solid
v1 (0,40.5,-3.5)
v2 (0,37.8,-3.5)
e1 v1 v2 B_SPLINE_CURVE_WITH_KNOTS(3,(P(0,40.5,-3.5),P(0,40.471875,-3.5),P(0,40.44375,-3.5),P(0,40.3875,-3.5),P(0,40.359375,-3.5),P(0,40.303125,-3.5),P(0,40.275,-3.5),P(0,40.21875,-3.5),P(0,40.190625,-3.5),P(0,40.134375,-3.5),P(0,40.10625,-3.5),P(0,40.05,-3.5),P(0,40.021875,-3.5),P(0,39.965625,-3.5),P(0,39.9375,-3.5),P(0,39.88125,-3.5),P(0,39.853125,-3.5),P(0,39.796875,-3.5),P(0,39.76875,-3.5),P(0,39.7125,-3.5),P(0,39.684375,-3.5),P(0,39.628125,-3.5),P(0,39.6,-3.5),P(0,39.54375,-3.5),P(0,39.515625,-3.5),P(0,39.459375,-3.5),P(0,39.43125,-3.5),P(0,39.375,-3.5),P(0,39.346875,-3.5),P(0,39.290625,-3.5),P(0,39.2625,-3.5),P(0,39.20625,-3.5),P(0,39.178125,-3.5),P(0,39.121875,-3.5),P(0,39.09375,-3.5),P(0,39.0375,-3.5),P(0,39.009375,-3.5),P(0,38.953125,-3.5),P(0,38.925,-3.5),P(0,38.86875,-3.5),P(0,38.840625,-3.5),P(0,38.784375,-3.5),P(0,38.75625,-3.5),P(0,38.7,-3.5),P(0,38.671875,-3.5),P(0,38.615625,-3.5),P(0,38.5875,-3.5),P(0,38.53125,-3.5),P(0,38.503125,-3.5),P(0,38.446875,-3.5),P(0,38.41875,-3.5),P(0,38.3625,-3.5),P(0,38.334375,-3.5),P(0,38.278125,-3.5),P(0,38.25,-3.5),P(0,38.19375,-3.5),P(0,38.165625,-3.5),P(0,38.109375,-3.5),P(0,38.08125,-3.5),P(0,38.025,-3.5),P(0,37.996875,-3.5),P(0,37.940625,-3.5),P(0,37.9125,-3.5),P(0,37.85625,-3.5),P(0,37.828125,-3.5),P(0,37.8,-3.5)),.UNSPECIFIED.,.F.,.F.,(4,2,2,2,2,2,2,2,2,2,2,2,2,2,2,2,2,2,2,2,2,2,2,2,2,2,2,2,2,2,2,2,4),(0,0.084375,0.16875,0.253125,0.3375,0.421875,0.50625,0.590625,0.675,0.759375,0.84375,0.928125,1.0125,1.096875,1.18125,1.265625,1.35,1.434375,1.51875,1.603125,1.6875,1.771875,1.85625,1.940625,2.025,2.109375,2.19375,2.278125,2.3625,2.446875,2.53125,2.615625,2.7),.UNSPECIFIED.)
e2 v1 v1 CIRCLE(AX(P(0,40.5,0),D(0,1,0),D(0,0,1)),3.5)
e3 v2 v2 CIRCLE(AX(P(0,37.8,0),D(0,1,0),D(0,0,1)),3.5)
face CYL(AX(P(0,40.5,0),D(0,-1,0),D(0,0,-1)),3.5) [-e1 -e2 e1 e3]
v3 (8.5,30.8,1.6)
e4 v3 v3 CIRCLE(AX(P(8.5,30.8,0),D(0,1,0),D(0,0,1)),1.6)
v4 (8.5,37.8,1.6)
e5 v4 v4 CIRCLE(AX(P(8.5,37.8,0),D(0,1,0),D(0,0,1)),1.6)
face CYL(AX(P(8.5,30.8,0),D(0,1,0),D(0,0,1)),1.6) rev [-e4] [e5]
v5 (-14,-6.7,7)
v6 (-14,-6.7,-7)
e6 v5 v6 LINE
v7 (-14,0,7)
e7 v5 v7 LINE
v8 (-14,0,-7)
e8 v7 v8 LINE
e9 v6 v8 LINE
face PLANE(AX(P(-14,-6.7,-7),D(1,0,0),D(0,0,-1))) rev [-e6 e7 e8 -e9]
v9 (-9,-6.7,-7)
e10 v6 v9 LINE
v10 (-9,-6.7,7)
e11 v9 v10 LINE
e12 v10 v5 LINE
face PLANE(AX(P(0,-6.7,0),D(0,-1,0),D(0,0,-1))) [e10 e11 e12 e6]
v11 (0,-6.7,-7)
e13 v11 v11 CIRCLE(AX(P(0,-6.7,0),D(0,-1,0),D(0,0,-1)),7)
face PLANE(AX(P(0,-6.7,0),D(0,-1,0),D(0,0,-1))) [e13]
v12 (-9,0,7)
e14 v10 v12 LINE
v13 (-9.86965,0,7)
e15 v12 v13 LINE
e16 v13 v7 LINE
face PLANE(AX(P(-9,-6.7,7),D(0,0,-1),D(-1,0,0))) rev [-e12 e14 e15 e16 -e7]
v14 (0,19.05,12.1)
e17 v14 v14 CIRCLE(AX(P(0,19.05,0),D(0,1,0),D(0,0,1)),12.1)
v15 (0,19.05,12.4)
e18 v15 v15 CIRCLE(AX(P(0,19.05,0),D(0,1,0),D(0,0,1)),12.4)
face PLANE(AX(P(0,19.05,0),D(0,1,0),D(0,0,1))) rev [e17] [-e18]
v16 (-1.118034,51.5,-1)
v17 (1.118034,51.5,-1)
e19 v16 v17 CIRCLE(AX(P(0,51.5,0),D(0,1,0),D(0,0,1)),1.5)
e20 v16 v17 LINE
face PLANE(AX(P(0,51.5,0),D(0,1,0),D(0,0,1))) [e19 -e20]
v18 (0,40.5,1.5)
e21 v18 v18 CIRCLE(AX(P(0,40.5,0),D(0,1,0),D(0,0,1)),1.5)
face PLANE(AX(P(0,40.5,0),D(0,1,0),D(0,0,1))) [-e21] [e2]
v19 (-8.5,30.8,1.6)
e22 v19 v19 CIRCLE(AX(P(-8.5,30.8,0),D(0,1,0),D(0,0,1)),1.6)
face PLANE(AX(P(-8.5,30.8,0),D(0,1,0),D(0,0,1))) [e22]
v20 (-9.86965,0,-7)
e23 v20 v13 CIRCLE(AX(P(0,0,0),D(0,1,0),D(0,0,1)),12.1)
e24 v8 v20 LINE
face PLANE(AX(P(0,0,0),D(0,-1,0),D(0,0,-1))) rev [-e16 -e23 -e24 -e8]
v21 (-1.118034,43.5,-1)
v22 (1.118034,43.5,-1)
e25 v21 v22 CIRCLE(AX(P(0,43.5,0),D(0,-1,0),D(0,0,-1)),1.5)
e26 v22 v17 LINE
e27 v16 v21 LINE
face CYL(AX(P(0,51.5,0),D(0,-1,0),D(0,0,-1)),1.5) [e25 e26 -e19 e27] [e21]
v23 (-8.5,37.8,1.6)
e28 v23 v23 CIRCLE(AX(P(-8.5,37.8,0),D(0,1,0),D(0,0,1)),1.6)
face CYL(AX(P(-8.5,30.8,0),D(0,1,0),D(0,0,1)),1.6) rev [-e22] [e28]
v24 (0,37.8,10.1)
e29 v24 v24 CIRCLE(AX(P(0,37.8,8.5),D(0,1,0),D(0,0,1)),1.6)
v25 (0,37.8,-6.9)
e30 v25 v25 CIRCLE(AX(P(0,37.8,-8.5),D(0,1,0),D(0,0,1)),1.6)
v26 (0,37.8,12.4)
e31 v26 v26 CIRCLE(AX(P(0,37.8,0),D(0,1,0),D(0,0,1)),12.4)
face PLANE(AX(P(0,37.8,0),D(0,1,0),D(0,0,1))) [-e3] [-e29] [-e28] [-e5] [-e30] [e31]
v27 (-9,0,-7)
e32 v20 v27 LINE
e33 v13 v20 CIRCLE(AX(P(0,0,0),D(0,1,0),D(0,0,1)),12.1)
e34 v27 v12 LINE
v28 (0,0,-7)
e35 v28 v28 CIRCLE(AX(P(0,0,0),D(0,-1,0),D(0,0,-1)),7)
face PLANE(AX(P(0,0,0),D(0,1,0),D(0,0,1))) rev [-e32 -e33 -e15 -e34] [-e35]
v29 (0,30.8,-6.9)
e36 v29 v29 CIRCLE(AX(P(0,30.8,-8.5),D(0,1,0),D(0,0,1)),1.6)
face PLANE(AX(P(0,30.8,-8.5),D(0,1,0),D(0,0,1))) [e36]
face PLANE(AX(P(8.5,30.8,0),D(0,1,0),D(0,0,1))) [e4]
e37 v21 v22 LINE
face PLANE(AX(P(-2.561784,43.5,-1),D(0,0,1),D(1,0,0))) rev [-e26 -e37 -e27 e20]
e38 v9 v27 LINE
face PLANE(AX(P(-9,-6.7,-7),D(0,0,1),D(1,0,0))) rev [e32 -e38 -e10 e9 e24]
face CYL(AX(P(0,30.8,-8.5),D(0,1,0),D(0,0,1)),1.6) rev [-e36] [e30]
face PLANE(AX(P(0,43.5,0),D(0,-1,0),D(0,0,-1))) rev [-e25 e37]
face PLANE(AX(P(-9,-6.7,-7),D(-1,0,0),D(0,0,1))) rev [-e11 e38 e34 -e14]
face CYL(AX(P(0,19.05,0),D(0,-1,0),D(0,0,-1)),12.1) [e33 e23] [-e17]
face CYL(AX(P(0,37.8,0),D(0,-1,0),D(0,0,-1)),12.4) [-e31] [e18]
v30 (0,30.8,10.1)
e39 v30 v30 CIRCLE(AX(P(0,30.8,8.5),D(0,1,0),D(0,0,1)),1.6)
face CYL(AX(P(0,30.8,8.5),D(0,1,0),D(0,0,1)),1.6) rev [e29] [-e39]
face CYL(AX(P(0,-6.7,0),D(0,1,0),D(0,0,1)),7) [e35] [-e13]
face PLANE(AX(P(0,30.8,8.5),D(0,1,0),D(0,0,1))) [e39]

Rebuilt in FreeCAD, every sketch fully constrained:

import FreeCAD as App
import Part
import Sketcher


def add_polygon(sketch, points):
    """Adds a closed chain of lines whose ends are joined by coincident constraints."""
    first, n = sketch.GeometryCount, len(points)
    for a, b in zip(points, points[1:] + points[:1]):
        sketch.addGeometry(Part.LineSegment(App.Vector(*a, 0), App.Vector(*b, 0)), False)
    for i in range(n):
        sketch.addConstraint(Sketcher.Constraint("Coincident", first + i, 2, first + (i + 1) % n, 1))

doc = App.newDocument("Part")
body = doc.addObject("PartDesign::Body", "Body")

# Sketch on XZ plane
sketch1 = body.newObject("Sketcher::SketchObject", "Sketch")
sketch1.AttachmentSupport = (doc.getObject("XZ_Plane"), [""])
sketch1.MapMode = "FlatFace"
sketch1.addGeometry(Part.Circle(App.Vector(0, 0, 0), App.Vector(0, 0, 1), 12), False)
sketch1.addConstraint([
    Sketcher.Constraint("Coincident", 0, 3, -1, 1),
    Sketcher.Constraint("Diameter", 0, 24.2),
])
pad1 = body.newObject("PartDesign::Pad", "Pad")
pad1.Profile = sketch1
pad1.Length = 19.05
pad1.Reversed = True

# Sketch on XZ plane
sketch2 = body.newObject("Sketcher::SketchObject", "Sketch001")
sketch2.AttachmentSupport = (doc.getObject("XZ_Plane"), [""])
sketch2.MapMode = "FlatFace"
sketch2.AttachmentOffset = App.Placement(App.Vector(0, 0, -19.05), App.Rotation())
sketch2.addGeometry(Part.Circle(App.Vector(0, 0, 0), App.Vector(0, 0, 1), 12), False)
sketch2.addConstraint([
    Sketcher.Constraint("Coincident", 0, 3, -1, 1),
    Sketcher.Constraint("Diameter", 0, 24.8),
])
pad2 = body.newObject("PartDesign::Pad", "Pad001")
pad2.Profile = sketch2
pad2.Length = 18.75
pad2.Reversed = True

# Sketch on XZ plane
sketch3 = body.newObject("Sketcher::SketchObject", "Sketch002")
sketch3.AttachmentSupport = (doc.getObject("XZ_Plane"), [""])
sketch3.MapMode = "FlatFace"
sketch3.AttachmentOffset = App.Placement(App.Vector(0, 0, -37.8), App.Rotation())
sketch3.addGeometry(Part.Circle(App.Vector(0, 0, 0), App.Vector(0, 0, 1), 3.5), False)
sketch3.addConstraint([
    Sketcher.Constraint("Coincident", 0, 3, -1, 1),
    Sketcher.Constraint("Diameter", 0, 7.0),
])
pad3 = body.newObject("PartDesign::Pad", "Pad002")
pad3.Profile = sketch3
pad3.Length = 2.7
pad3.Reversed = True

# Sketch on XZ plane
sketch4 = body.newObject("Sketcher::SketchObject", "Sketch003")
sketch4.AttachmentSupport = (doc.getObject("XZ_Plane"), [""])
sketch4.MapMode = "FlatFace"
sketch4.AttachmentOffset = App.Placement(App.Vector(0, 0, -40.5), App.Rotation())
sketch4.addGeometry(Part.Circle(App.Vector(0, 0, 0), App.Vector(0, 0, 1), 1.5), False)
sketch4.addConstraint([
    Sketcher.Constraint("Coincident", 0, 3, -1, 1),
    Sketcher.Constraint("Diameter", 0, 3.0),
])
pad4 = body.newObject("PartDesign::Pad", "Pad003")
pad4.Profile = sketch4
pad4.Length = 11
pad4.Reversed = True

# Sketch on XZ plane
sketch5 = body.newObject("Sketcher::SketchObject", "Sketch004")
sketch5.AttachmentSupport = (doc.getObject("XZ_Plane"), [""])
sketch5.MapMode = "FlatFace"
sketch5.AttachmentOffset = App.Placement(App.Vector(0, 0, -37.8), App.Rotation())
sketch5.addGeometry([
    Part.Circle(App.Vector(0, -8.5, 0), App.Vector(0, 0, 1), 1.6),
    Part.Circle(App.Vector(8.5, 0, 0), App.Vector(0, 0, 1), 1.6),
    Part.Circle(App.Vector(0, 8.5, 0), App.Vector(0, 0, 1), 1.6),
    Part.Circle(App.Vector(-8.5, 0, 0), App.Vector(0, 0, 1), 1.6),
], False)
sketch5.addConstraint([
    Sketcher.Constraint("Equal", 0, 1),
    Sketcher.Constraint("Equal", 1, 2),
    Sketcher.Constraint("Equal", 2, 3),
    Sketcher.Constraint("Symmetric", 0, 3, 2, 3, -1, 1),
    Sketcher.Constraint("Symmetric", 1, 3, 3, 3, -1, 1),
    Sketcher.Constraint("PointOnObject", 0, 3, -2),
    Sketcher.Constraint("PointOnObject", 1, 3, -1),
    Sketcher.Constraint("Diameter", 0, 3.2),
    Sketcher.Constraint("DistanceY", 0, 3, 2, 3, 17.0),
    Sketcher.Constraint("DistanceX", 3, 3, 1, 3, 17.0),
])
pocket1 = body.newObject("PartDesign::Pocket", "Pocket")
pocket1.Profile = sketch5
pocket1.Length = 7
pocket1.Reversed = True

# Sketch on XZ plane
sketch6 = body.newObject("Sketcher::SketchObject", "Sketch005")
sketch6.AttachmentSupport = (doc.getObject("XZ_Plane"), [""])
sketch6.MapMode = "FlatFace"
sketch6.AttachmentOffset = App.Placement(App.Vector(0, 0, -51.5), App.Rotation())
add_polygon(sketch6, [(-2.6, -2), (-2.6, -1), (2.6, -1), (2.6, -2)])  # lines 0-3
sketch6.addConstraint([
    Sketcher.Constraint("Vertical", 0),
    Sketcher.Constraint("Horizontal", 1),
    Sketcher.Constraint("Vertical", 2),
    Sketcher.Constraint("Horizontal", 3),
    Sketcher.Constraint("DistanceY", 0, 1, 0, 2, 1.0),
    Sketcher.Constraint("DistanceY", 0, 2, -1, 1, 1.0),
    Sketcher.Constraint("DistanceX", 1, 1, 1, 2, 5.123568),
    Sketcher.Constraint("DistanceX", 0, 2, -1, 1, 2.561784),
])
pocket2 = body.newObject("PartDesign::Pocket", "Pocket001")
pocket2.Profile = sketch6
pocket2.Length = 8
pocket2.Reversed = True

# Sketch on XZ plane
sketch7 = body.newObject("Sketcher::SketchObject", "Sketch006")
sketch7.AttachmentSupport = (doc.getObject("XZ_Plane"), [""])
sketch7.MapMode = "FlatFace"
sketch7.addGeometry(Part.Circle(App.Vector(0, 0, 0), App.Vector(0, 0, 1), 7), False)  # 0
add_polygon(sketch7, [(-14, 7), (-14, -7), (-9, -7), (-9, 7)])  # lines 1-4
sketch7.addConstraint([
    Sketcher.Constraint("Vertical", 1),
    Sketcher.Constraint("Horizontal", 2),
    Sketcher.Constraint("Vertical", 3),
    Sketcher.Constraint("Horizontal", 4),
    Sketcher.Constraint("Coincident", 0, 3, -1, 1),
    Sketcher.Constraint("Diameter", 0, 14.0),
    Sketcher.Constraint("DistanceX", 2, 1, 2, 2, 5.0),
    Sketcher.Constraint("DistanceY", 1, 2, 1, 1, 14.0),
    Sketcher.Constraint("DistanceX", 1, 2, -1, 1, 14.0),
    Sketcher.Constraint("DistanceY", 1, 2, -1, 1, 7.0),
])
pad5 = body.newObject("PartDesign::Pad", "Pad004")
pad5.Profile = sketch7
pad5.Length = 6.7

doc.recompute()
